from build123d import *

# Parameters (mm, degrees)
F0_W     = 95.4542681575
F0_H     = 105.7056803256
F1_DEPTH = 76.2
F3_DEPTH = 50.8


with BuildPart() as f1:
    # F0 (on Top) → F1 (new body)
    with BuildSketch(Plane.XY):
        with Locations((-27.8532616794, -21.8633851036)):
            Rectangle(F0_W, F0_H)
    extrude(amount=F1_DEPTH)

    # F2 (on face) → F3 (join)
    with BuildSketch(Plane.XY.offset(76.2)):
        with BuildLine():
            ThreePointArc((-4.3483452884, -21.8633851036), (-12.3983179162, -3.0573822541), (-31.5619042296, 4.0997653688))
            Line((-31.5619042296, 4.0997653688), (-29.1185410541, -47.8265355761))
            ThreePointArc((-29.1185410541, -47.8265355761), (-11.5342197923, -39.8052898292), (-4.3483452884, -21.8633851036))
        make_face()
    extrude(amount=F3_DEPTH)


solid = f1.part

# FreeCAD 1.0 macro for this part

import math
import FreeCAD as App
import Part
import Sketcher

V = App.Vector
Q = App.Units.Quantity


def add_polygon(sketch, points):
    """Adds a closed chain of lines whose ends are joined by coincident constraints."""
    first, n = sketch.GeometryCount, len(points)
    for a, b in zip(points, points[1:] + points[:1]):
        sketch.addGeometry(Part.LineSegment(App.Vector(*a, 0), App.Vector(*b, 0)), False)
    for i in range(n):
        sketch.addConstraint(Sketcher.Constraint("Coincident", first + i, 2, first + (i + 1) % n, 1))

doc = App.newDocument("Part")
params = doc.addObject("Spreadsheet::Sheet", "Params")
for row, (alias, value) in enumerate([
    ("pad1_length", "3 in"),
    ("pad2_length", "2 in"),
], start=1):
    params.set(f"A{row}", alias)
    params.set(f"B{row}", "=" + value)
    params.setAlias(f"B{row}", alias)

body = doc.addObject("PartDesign::Body", "Body")

# Sketch on XY plane
sketch1 = body.newObject("Sketcher::SketchObject", "Sketch")
sketch1.AttachmentSupport = (doc.getObject("XY_Plane"), [""])
sketch1.MapMode = "FlatFace"
add_polygon(sketch1, [(-76, 31), (-76, -75), (20, -75), (20, 31)])  # lines 0-3
sketch1.addConstraint([
    Sketcher.Constraint("Vertical", 0),
    Sketcher.Constraint("Horizontal", 1),
    Sketcher.Constraint("Vertical", 2),
    Sketcher.Constraint("Horizontal", 3),
    Sketcher.Constraint("DistanceX", 1, 1, 1, 2, Q("95.454268 mm")),
    Sketcher.Constraint("DistanceY", 0, 2, 0, 1, Q("105.70568 mm")),
    Sketcher.Constraint("DistanceX", 0, 2, -1, 1, Q("75.580396 mm")),
    Sketcher.Constraint("DistanceY", 0, 2, -1, 1, Q("74.716225 mm")),
])
pad1 = body.newObject("PartDesign::Pad", "Pad")
pad1.Profile = sketch1
pad1.setExpression("Length", "Params.pad1_length")

# Sketch on XY plane
sketch2 = body.newObject("Sketcher::SketchObject", "Sketch001")
sketch2.AttachmentSupport = (doc.getObject("XY_Plane"), [""])
sketch2.MapMode = "FlatFace"
sketch2.AttachmentOffset = App.Placement(V(0, 0, 3 * 25.4), App.Rotation())
sketch2.addGeometry([
    Part.ArcOfCircle(Part.Circle(V(-30, -22, 0), V(0, 0, 1), 26), math.radians(0), math.radians(93)),
    Part.LineSegment(V(-32, 4, 0), V(-29, -48, 0)),
    Part.ArcOfCircle(Part.Circle(V(-30, -22, 0), V(0, 0, 1), 26), math.radians(-87), math.radians(0)),
], False)
sketch2.addConstraint([
    Sketcher.Constraint("Coincident", 0, 2, 1, 1),
    Sketcher.Constraint("Coincident", 1, 2, 2, 1),
    Sketcher.Constraint("Tangent", 2, 2, 0, 1),
    Sketcher.Constraint("Equal", 0, 2),
    Sketcher.Constraint("Horizontal", 0, 3, 2, 2),
    Sketcher.Constraint("Radius", 0, Q("25.991877 mm")),
    Sketcher.Constraint("DistanceX", 0, 2, 2, 2, Q("1.0714 in")),
    Sketcher.Constraint("DistanceY", 1, 2, 0, 2, Q("51.926301 mm")),
    Sketcher.Constraint("DistanceX", 1, 2, -1, 1, Q("29.118541 mm")),
    Sketcher.Constraint("DistanceY", 0, 3, -1, 1, Q("21.863385 mm")),
])
pad2 = body.newObject("PartDesign::Pad", "Pad001")
pad2.Profile = sketch2
pad2.setExpression("Length", "Params.pad2_length")

doc.recompute()
